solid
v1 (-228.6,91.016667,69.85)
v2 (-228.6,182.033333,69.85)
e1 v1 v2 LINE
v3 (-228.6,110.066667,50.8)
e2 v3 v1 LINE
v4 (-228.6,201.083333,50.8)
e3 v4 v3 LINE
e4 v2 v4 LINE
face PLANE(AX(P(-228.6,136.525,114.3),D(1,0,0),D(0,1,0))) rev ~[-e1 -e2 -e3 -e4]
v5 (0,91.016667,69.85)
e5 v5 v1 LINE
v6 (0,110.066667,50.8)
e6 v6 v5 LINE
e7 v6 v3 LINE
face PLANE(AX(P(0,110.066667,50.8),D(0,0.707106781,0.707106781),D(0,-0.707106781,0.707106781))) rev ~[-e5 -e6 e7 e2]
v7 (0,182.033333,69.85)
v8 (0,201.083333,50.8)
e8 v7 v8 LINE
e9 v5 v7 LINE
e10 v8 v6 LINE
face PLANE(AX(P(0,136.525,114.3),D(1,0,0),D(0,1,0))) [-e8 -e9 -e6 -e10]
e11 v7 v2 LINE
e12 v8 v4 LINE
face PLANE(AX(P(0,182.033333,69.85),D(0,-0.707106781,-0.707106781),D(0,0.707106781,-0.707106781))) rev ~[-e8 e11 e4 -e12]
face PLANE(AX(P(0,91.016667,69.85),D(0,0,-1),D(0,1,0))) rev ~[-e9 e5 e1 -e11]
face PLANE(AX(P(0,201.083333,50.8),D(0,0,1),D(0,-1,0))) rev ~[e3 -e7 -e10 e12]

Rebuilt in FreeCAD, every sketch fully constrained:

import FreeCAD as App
import Part
import Sketcher
from FreeCAD import Vector
Q = App.Units.Quantity

doc = App.newDocument("Part")
body = doc.addObject("PartDesign::Body", "Body")

# Sketch on YZ plane
sketch1 = body.newObject("Sketcher::SketchObject", "Sketch")
sketch1.AttachmentSupport = (doc.getObject("YZ_Plane"), [""])
sketch1.MapMode = "FlatFace"
sketch1.addGeometry(Part.LineSegment(Vector(0, 228.6, 0), Vector(0, 0, 0)), False)
sketch1.addGeometry(Part.LineSegment(Vector(0, 0, 0), Vector(273.05, 0, 0)), False)
sketch1.addGeometry(Part.LineSegment(Vector(273.05, 0, 0), Vector(273.05, 228.6, 0)), False)
sketch1.addGeometry(Part.LineSegment(Vector(273.05, 228.6, 0), Vector(0, 228.6, 0)), False)
sketch1.addConstraint(Sketcher.Constraint("Coincident", 0, 2, 1, 1))
sketch1.addConstraint(Sketcher.Constraint("Coincident", 1, 2, 2, 1))
sketch1.addConstraint(Sketcher.Constraint("Coincident", 2, 2, 3, 1))
sketch1.addConstraint(Sketcher.Constraint("Coincident", 3, 2, 0, 1))
sketch1.addConstraint(Sketcher.Constraint("Vertical", 0))
sketch1.addConstraint(Sketcher.Constraint("Horizontal", 1))
sketch1.addConstraint(Sketcher.Constraint("Vertical", 2))
sketch1.addConstraint(Sketcher.Constraint("Horizontal", 3))
sketch1.addConstraint(Sketcher.Constraint("Coincident", 0, 2, -1, 1))
sketch1.addConstraint(Sketcher.Constraint("DistanceY", 0, 2, 0, 1, Q("9 in")))
sketch1.addConstraint(Sketcher.Constraint("DistanceX", 1, 1, 1, 2, Q("10.75 in")))
pad1 = body.newObject("PartDesign::Pad", "Pad")
pad1.Profile = sketch1
pad1.Length = Q("9 in")
pad1.Reversed = True

# Sketch on YZ plane
sketch2 = body.newObject("Sketcher::SketchObject", "Sketch001")
sketch2.AttachmentSupport = (doc.getObject("YZ_Plane"), [""])
sketch2.MapMode = "FlatFace"
sketch2.addGeometry(Part.LineSegment(Vector(182.033333, 139.7, 0), Vector(273.05, 139.7, 0)), False)
sketch2.addGeometry(Part.LineSegment(Vector(273.05, 139.7, 0), Vector(273.05, 228.6, 0)), False)
sketch2.addGeometry(Part.LineSegment(Vector(273.05, 228.6, 0), Vector(0, 228.6, 0)), False)
sketch2.addGeometry(Part.LineSegment(Vector(0, 228.6, 0), Vector(0, 0, 0)), False)
sketch2.addGeometry(Part.LineSegment(Vector(0, 0, 0), Vector(91.016667, 0, 0)), False)
sketch2.addGeometry(Part.LineSegment(Vector(91.016667, 0, 0), Vector(91.016667, 69.85, 0)), False)
sketch2.addGeometry(Part.LineSegment(Vector(91.016667, 69.85, 0), Vector(182.033333, 69.85, 0)), False)
sketch2.addGeometry(Part.LineSegment(Vector(182.033333, 69.85, 0), Vector(182.033333, 139.7, 0)), False)
sketch2.addConstraint(Sketcher.Constraint("Coincident", 0, 2, 1, 1))
sketch2.addConstraint(Sketcher.Constraint("Coincident", 1, 2, 2, 1))
sketch2.addConstraint(Sketcher.Constraint("Coincident", 2, 2, 3, 1))
sketch2.addConstraint(Sketcher.Constraint("Coincident", 3, 2, 4, 1))
sketch2.addConstraint(Sketcher.Constraint("Coincident", 4, 2, 5, 1))
sketch2.addConstraint(Sketcher.Constraint("Coincident", 5, 2, 6, 1))
sketch2.addConstraint(Sketcher.Constraint("Coincident", 6, 2, 7, 1))
sketch2.addConstraint(Sketcher.Constraint("Coincident", 7, 2, 0, 1))
sketch2.addConstraint(Sketcher.Constraint("Horizontal", 0))
sketch2.addConstraint(Sketcher.Constraint("Vertical", 1))
sketch2.addConstraint(Sketcher.Constraint("Horizontal", 2))
sketch2.addConstraint(Sketcher.Constraint("Vertical", 3))
sketch2.addConstraint(Sketcher.Constraint("Horizontal", 4))
sketch2.addConstraint(Sketcher.Constraint("Vertical", 5))
sketch2.addConstraint(Sketcher.Constraint("Horizontal", 6))
sketch2.addConstraint(Sketcher.Constraint("Vertical", 7))
sketch2.addConstraint(Sketcher.Constraint("Coincident", 3, 2, -1, 1))
sketch2.addConstraint(Sketcher.Constraint("Equal", 0, 4))
sketch2.addConstraint(Sketcher.Constraint("Equal", 4, 6))
sketch2.addConstraint(Sketcher.Constraint("Equal", 5, 7))
sketch2.addConstraint(Sketcher.Constraint("DistanceY", 3, 2, 3, 1, Q("9 in")))
sketch2.addConstraint(Sketcher.Constraint("DistanceY", 1, 1, 1, 2, Q("3.5 in")))
sketch2.addConstraint(Sketcher.Constraint("DistanceX", 2, 2, 2, 1, Q("10.75 in")))
pocket1 = body.newObject("PartDesign::Pocket", "Pocket")
pocket1.Profile = sketch2
pocket1.Type = "ThroughAll"

# Sketch on YZ plane
sketch3 = body.newObject("Sketcher::SketchObject", "Sketch002")
sketch3.AttachmentSupport = (doc.getObject("YZ_Plane"), [""])
sketch3.MapMode = "FlatFace"
sketch3.addGeometry(Part.LineSegment(Vector(201.083333, 50.8, 0), Vector(110.066667, 50.8, 0)), False)
sketch3.addGeometry(Part.LineSegment(Vector(110.066667, 50.8, 0), Vector(110.066667, 0, 0)), False)
sketch3.addGeometry(Part.LineSegment(Vector(110.066667, 0, 0), Vector(273.05, 0, 0)), False)
sketch3.addGeometry(Part.LineSegment(Vector(273.05, 0, 0), Vector(273.05, 120.65, 0)), False)
sketch3.addGeometry(Part.LineSegment(Vector(273.05, 120.65, 0), Vector(201.083333, 120.65, 0)), False)
sketch3.addGeometry(Part.LineSegment(Vector(201.083333, 120.65, 0), Vector(201.083333, 50.8, 0)), False)
sketch3.addConstraint(Sketcher.Constraint("Coincident", 0, 2, 1, 1))
sketch3.addConstraint(Sketcher.Constraint("Coincident", 1, 2, 2, 1))
sketch3.addConstraint(Sketcher.Constraint("Coincident", 2, 2, 3, 1))
sketch3.addConstraint(Sketcher.Constraint("Coincident", 3, 2, 4, 1))
sketch3.addConstraint(Sketcher.Constraint("Coincident", 4, 2, 5, 1))
sketch3.addConstraint(Sketcher.Constraint("Coincident", 5, 2, 0, 1))
sketch3.addConstraint(Sketcher.Constraint("Horizontal", 0))
sketch3.addConstraint(Sketcher.Constraint("Vertical", 1))
sketch3.addConstraint(Sketcher.Constraint("Horizontal", 2))
sketch3.addConstraint(Sketcher.Constraint("Vertical", 3))
sketch3.addConstraint(Sketcher.Constraint("Horizontal", 4))
sketch3.addConstraint(Sketcher.Constraint("Vertical", 5))
sketch3.addConstraint(Sketcher.Constraint("PointOnObject", 1, 2, -1))
sketch3.addConstraint(Sketcher.Constraint("DistanceY", 1, 2, 1, 1, Q("2 in")))
sketch3.addConstraint(Sketcher.Constraint("DistanceY", 3, 1, 3, 2, Q("4.75 in")))
sketch3.addConstraint(Sketcher.Constraint("DistanceX", -1, 1, 2, 2, Q("10.75 in")))
sketch3.addConstraint(Sketcher.Constraint("DistanceX", 0, 2, 0, 1, 91.016667))
sketch3.addConstraint(Sketcher.Constraint("DistanceX", 2, 1, 2, 2, 162.983333))
pocket2 = body.newObject("PartDesign::Pocket", "Pocket001")
pocket2.Profile = sketch3
pocket2.Type = "ThroughAll"

# Sketch on YZ plane
sketch4 = body.newObject("Sketcher::SketchObject", "Sketch003")
sketch4.AttachmentSupport = (doc.getObject("YZ_Plane"), [""])
sketch4.MapMode = "FlatFace"
sketch4.addGeometry(Part.LineSegment(Vector(273.05, 139.7, 0), Vector(182.033333, 139.7, 0)), False)
sketch4.addGeometry(Part.LineSegment(Vector(182.033333, 139.7, 0), Vector(182.033333, 69.85, 0)), False)
sketch4.addGeometry(Part.LineSegment(Vector(182.033333, 69.85, 0), Vector(201.083333, 50.8, 0)), False)
sketch4.addGeometry(Part.LineSegment(Vector(201.083333, 50.8, 0), Vector(201.083333, 120.65, 0)), False)
sketch4.addGeometry(Part.LineSegment(Vector(201.083333, 120.65, 0), Vector(273.05, 120.65, 0)), False)
sketch4.addGeometry(Part.LineSegment(Vector(273.05, 120.65, 0), Vector(273.05, 139.7, 0)), False)
sketch4.addGeometry(Part.LineSegment(Vector(110.066667, 50.8, 0), Vector(91.016667, 69.85, 0)), False)
sketch4.addGeometry(Part.LineSegment(Vector(91.016667, 69.85, 0), Vector(91.016667, 0, 0)), False)
sketch4.addGeometry(Part.LineSegment(Vector(91.016667, 0, 0), Vector(110.066667, 0, 0)), False)
sketch4.addGeometry(Part.LineSegment(Vector(110.066667, 0, 0), Vector(110.066667, 50.8, 0)), False)
sketch4.addConstraint(Sketcher.Constraint("Coincident", 0, 2, 1, 1))
sketch4.addConstraint(Sketcher.Constraint("Coincident", 1, 2, 2, 1))
sketch4.addConstraint(Sketcher.Constraint("Coincident", 2, 2, 3, 1))
sketch4.addConstraint(Sketcher.Constraint("Coincident", 3, 2, 4, 1))
sketch4.addConstraint(Sketcher.Constraint("Coincident", 4, 2, 5, 1))
sketch4.addConstraint(Sketcher.Constraint("Coincident", 5, 2, 0, 1))
sketch4.addConstraint(Sketcher.Constraint("Coincident", 6, 2, 7, 1))
sketch4.addConstraint(Sketcher.Constraint("Coincident", 7, 2, 8, 1))
sketch4.addConstraint(Sketcher.Constraint("Coincident", 8, 2, 9, 1))
sketch4.addConstraint(Sketcher.Constraint("Coincident", 9, 2, 6, 1))
sketch4.addConstraint(Sketcher.Constraint("Horizontal", 0))
sketch4.addConstraint(Sketcher.Constraint("Vertical", 1))
sketch4.addConstraint(Sketcher.Constraint("Vertical", 3))
sketch4.addConstraint(Sketcher.Constraint("Horizontal", 4))
sketch4.addConstraint(Sketcher.Constraint("Vertical", 5))
sketch4.addConstraint(Sketcher.Constraint("Vertical", 7))
sketch4.addConstraint(Sketcher.Constraint("Horizontal", 8))
sketch4.addConstraint(Sketcher.Constraint("Vertical", 9))
sketch4.addConstraint(Sketcher.Constraint("PointOnObject", 7, 2, -1))
sketch4.addConstraint(Sketcher.Constraint("Parallel", 2, 6))
sketch4.addConstraint(Sketcher.Constraint("Horizontal", 1, 2, 6, 2))
sketch4.addConstraint(Sketcher.Constraint("Horizontal", 2, 2, 9, 2))
sketch4.addConstraint(Sketcher.Constraint("Equal", 1, 3))
sketch4.addConstraint(Sketcher.Constraint("Equal", 8, 5))
sketch4.addConstraint(Sketcher.Constraint("Equal", 3, 7))
sketch4.addConstraint(Sketcher.Constraint("DistanceY", 9, 1, 9, 2, Q("2 in")))
sketch4.addConstraint(Sketcher.Constraint("DistanceX", 8, 1, 8, 2, Q("0.75 in")))
sketch4.addConstraint(Sketcher.Constraint("DistanceX", -1, 1, 4, 2, Q("10.75 in")))
sketch4.addConstraint(Sketcher.Constraint("DistanceX", 0, 2, 0, 1, 91.016667))
sketch4.addConstraint(Sketcher.Constraint("DistanceX", -1, 1, 6, 2, 91.016667))
pocket3 = body.newObject("PartDesign::Pocket", "Pocket002")
pocket3.Profile = sketch4
pocket3.Type = "ThroughAll"

doc.recompute()
